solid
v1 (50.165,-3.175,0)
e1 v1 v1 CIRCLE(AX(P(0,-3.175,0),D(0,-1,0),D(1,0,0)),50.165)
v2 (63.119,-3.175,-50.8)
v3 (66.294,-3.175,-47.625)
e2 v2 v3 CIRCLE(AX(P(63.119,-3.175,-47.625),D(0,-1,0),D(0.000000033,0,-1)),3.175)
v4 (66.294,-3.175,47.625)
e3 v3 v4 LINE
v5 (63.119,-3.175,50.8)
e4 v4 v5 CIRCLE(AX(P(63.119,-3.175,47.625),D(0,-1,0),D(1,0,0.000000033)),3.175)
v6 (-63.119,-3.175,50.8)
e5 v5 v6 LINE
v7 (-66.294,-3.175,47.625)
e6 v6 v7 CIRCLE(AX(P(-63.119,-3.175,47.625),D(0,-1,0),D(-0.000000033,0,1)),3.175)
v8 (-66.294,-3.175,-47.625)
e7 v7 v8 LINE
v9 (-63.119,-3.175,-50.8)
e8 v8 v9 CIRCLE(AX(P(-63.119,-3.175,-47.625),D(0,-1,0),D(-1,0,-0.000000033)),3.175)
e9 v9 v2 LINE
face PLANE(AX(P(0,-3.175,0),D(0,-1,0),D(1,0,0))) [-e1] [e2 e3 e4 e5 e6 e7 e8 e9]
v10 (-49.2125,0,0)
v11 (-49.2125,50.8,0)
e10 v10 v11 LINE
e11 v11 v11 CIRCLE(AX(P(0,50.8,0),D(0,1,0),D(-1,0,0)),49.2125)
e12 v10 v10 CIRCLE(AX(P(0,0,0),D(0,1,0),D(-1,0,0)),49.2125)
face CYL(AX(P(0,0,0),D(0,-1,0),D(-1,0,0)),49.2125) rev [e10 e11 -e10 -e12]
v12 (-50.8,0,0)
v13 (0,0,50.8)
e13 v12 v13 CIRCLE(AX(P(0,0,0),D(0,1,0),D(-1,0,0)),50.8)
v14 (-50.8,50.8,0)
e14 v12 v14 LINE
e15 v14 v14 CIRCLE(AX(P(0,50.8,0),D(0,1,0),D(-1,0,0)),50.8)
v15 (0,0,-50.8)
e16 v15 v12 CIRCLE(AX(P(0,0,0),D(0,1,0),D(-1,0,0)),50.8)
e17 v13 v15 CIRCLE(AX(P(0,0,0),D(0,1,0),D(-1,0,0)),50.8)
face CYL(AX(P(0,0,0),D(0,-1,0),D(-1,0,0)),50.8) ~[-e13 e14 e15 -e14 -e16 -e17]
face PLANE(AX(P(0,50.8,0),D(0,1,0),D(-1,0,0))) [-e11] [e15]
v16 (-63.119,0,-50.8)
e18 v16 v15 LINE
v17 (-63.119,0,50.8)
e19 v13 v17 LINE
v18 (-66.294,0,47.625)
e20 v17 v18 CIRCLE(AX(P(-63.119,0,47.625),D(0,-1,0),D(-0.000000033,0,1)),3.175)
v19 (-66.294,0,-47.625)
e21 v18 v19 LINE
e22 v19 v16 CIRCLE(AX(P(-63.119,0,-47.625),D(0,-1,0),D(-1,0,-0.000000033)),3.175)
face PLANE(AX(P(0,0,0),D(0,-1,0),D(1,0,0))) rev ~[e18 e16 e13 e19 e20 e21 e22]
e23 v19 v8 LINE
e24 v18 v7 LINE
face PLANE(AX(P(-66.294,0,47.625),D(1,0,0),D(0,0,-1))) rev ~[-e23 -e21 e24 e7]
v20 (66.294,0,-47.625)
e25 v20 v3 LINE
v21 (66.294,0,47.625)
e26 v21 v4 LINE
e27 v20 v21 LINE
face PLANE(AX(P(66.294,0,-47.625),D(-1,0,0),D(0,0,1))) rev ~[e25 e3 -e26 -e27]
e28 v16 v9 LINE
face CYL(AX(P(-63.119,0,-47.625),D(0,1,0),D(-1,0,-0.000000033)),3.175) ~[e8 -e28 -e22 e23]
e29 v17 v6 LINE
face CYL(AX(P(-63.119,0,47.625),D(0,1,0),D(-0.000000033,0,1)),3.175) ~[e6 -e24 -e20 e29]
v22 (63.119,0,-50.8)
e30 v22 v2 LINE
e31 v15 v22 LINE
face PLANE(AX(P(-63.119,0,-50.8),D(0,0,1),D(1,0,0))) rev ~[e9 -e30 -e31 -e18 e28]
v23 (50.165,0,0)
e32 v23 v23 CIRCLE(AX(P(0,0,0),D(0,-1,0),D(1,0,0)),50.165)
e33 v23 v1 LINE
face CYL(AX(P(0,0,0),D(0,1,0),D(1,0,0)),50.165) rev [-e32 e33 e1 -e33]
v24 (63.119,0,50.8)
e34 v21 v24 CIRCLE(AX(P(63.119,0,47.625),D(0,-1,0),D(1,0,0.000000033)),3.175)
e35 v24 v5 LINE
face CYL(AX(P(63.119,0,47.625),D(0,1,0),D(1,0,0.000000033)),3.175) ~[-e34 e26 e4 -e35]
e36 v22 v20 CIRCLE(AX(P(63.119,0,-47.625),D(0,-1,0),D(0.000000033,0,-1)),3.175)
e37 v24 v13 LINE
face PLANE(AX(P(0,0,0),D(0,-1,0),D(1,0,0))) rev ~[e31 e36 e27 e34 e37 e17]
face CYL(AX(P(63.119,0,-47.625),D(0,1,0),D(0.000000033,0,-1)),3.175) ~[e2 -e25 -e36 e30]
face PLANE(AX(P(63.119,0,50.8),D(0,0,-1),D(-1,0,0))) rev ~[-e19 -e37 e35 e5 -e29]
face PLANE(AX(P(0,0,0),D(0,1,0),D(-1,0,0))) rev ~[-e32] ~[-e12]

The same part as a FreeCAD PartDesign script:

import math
import FreeCAD as App
import Part
import Sketcher
from FreeCAD import Vector
Q = App.Units.Quantity

doc = App.newDocument("Part")
body = doc.addObject("PartDesign::Body", "Body")

sketch1 = body.newObject("Sketcher::SketchObject", "Sketch")
sketch1.AttachmentSupport = (doc.getObject("XZ_Plane"), [""])
sketch1.MapMode = "FlatFace"
sketch1.addGeometry([
    Part.LineSegment(Vector(63.1, 50.8, 0), Vector(-63.1, 50.8, 0)),
    Part.ArcOfCircle(Part.Circle(Vector(-63.1, 47.6, 0), Vector(0, 0, 1), 3.2), math.radians(90), math.radians(180)),
    Part.LineSegment(Vector(-66.3, 47.6, 0), Vector(-66.3, -47.6, 0)),
    Part.ArcOfCircle(Part.Circle(Vector(-63.1, -47.6, 0), Vector(0, 0, 1), 3.2), math.radians(-180), math.radians(-90)),
    Part.LineSegment(Vector(-63.1, -50.8, 0), Vector(63.1, -50.8, 0)),
    Part.ArcOfCircle(Part.Circle(Vector(63.1, -47.6, 0), Vector(0, 0, 1), 3.2), math.radians(-90), math.radians(0)),
    Part.LineSegment(Vector(66.3, -47.6, 0), Vector(66.3, 47.6, 0)),
    Part.ArcOfCircle(Part.Circle(Vector(63.1, 47.6, 0), Vector(0, 0, 1), 3.2), math.radians(0), math.radians(90)),
    Part.Circle(Vector(0, 0, 0), Vector(0, 0, 1), 50.2),
], False)
sketch1.addConstraint([
    Sketcher.Constraint("Tangent", 0, 2, 1, 1),
    Sketcher.Constraint("Tangent", 1, 2, 2, 1),
    Sketcher.Constraint("Tangent", 2, 2, 3, 1),
    Sketcher.Constraint("Tangent", 3, 2, 4, 1),
    Sketcher.Constraint("Tangent", 4, 2, 5, 1),
    Sketcher.Constraint("Tangent", 5, 2, 6, 1),
    Sketcher.Constraint("Tangent", 6, 2, 7, 1),
    Sketcher.Constraint("Tangent", 7, 2, 0, 1),
    Sketcher.Constraint("Horizontal", 0),
    Sketcher.Constraint("Vertical", 2),
    Sketcher.Constraint("Horizontal", 4),
    Sketcher.Constraint("Vertical", 6),
    Sketcher.Constraint("Coincident", 8, 3, -1, 1),
    Sketcher.Constraint("Equal", 1, 3),
    Sketcher.Constraint("Equal", 3, 5),
    Sketcher.Constraint("Equal", 5, 7),
    Sketcher.Constraint("Symmetric", 1, 3, 5, 3, -1, 1),
    Sketcher.Constraint("Diameter", 8, Q("3.95 in")),
    Sketcher.Constraint("DistanceY", -1, 1, 0, 2, Q("2 in")),
    Sketcher.Constraint("Radius", 1, Q("0.125 in")),
    Sketcher.Constraint("DistanceX", 0, 2, 0, 1, Q("4.97 in")),
])
pad1 = body.newObject("PartDesign::Pad", "Pad")
pad1.Profile = sketch1
pad1.Length = Q("0.125 in")

sketch2 = body.newObject("Sketcher::SketchObject", "Sketch001")
sketch2.AttachmentSupport = (doc.getObject("XZ_Plane"), [""])
sketch2.MapMode = "FlatFace"
sketch2.addGeometry([
    Part.Circle(Vector(0, 0, 0), Vector(0, 0, 1), 51),
    Part.Circle(Vector(0, 0, 0), Vector(0, 0, 1), 49),
], False)
sketch2.addConstraint([
    Sketcher.Constraint("Coincident", 0, 3, -1, 1),
    Sketcher.Constraint("Coincident", 1, 3, -1, 1),
    Sketcher.Constraint("Diameter", 0, Q("4 in")),
    Sketcher.Constraint("Diameter", 1, Q("3.875 in")),
])
pad2 = body.newObject("PartDesign::Pad", "Pad001")
pad2.Profile = sketch2
pad2.Length = Q("2 in")
pad2.Reversed = True

doc.recompute()
